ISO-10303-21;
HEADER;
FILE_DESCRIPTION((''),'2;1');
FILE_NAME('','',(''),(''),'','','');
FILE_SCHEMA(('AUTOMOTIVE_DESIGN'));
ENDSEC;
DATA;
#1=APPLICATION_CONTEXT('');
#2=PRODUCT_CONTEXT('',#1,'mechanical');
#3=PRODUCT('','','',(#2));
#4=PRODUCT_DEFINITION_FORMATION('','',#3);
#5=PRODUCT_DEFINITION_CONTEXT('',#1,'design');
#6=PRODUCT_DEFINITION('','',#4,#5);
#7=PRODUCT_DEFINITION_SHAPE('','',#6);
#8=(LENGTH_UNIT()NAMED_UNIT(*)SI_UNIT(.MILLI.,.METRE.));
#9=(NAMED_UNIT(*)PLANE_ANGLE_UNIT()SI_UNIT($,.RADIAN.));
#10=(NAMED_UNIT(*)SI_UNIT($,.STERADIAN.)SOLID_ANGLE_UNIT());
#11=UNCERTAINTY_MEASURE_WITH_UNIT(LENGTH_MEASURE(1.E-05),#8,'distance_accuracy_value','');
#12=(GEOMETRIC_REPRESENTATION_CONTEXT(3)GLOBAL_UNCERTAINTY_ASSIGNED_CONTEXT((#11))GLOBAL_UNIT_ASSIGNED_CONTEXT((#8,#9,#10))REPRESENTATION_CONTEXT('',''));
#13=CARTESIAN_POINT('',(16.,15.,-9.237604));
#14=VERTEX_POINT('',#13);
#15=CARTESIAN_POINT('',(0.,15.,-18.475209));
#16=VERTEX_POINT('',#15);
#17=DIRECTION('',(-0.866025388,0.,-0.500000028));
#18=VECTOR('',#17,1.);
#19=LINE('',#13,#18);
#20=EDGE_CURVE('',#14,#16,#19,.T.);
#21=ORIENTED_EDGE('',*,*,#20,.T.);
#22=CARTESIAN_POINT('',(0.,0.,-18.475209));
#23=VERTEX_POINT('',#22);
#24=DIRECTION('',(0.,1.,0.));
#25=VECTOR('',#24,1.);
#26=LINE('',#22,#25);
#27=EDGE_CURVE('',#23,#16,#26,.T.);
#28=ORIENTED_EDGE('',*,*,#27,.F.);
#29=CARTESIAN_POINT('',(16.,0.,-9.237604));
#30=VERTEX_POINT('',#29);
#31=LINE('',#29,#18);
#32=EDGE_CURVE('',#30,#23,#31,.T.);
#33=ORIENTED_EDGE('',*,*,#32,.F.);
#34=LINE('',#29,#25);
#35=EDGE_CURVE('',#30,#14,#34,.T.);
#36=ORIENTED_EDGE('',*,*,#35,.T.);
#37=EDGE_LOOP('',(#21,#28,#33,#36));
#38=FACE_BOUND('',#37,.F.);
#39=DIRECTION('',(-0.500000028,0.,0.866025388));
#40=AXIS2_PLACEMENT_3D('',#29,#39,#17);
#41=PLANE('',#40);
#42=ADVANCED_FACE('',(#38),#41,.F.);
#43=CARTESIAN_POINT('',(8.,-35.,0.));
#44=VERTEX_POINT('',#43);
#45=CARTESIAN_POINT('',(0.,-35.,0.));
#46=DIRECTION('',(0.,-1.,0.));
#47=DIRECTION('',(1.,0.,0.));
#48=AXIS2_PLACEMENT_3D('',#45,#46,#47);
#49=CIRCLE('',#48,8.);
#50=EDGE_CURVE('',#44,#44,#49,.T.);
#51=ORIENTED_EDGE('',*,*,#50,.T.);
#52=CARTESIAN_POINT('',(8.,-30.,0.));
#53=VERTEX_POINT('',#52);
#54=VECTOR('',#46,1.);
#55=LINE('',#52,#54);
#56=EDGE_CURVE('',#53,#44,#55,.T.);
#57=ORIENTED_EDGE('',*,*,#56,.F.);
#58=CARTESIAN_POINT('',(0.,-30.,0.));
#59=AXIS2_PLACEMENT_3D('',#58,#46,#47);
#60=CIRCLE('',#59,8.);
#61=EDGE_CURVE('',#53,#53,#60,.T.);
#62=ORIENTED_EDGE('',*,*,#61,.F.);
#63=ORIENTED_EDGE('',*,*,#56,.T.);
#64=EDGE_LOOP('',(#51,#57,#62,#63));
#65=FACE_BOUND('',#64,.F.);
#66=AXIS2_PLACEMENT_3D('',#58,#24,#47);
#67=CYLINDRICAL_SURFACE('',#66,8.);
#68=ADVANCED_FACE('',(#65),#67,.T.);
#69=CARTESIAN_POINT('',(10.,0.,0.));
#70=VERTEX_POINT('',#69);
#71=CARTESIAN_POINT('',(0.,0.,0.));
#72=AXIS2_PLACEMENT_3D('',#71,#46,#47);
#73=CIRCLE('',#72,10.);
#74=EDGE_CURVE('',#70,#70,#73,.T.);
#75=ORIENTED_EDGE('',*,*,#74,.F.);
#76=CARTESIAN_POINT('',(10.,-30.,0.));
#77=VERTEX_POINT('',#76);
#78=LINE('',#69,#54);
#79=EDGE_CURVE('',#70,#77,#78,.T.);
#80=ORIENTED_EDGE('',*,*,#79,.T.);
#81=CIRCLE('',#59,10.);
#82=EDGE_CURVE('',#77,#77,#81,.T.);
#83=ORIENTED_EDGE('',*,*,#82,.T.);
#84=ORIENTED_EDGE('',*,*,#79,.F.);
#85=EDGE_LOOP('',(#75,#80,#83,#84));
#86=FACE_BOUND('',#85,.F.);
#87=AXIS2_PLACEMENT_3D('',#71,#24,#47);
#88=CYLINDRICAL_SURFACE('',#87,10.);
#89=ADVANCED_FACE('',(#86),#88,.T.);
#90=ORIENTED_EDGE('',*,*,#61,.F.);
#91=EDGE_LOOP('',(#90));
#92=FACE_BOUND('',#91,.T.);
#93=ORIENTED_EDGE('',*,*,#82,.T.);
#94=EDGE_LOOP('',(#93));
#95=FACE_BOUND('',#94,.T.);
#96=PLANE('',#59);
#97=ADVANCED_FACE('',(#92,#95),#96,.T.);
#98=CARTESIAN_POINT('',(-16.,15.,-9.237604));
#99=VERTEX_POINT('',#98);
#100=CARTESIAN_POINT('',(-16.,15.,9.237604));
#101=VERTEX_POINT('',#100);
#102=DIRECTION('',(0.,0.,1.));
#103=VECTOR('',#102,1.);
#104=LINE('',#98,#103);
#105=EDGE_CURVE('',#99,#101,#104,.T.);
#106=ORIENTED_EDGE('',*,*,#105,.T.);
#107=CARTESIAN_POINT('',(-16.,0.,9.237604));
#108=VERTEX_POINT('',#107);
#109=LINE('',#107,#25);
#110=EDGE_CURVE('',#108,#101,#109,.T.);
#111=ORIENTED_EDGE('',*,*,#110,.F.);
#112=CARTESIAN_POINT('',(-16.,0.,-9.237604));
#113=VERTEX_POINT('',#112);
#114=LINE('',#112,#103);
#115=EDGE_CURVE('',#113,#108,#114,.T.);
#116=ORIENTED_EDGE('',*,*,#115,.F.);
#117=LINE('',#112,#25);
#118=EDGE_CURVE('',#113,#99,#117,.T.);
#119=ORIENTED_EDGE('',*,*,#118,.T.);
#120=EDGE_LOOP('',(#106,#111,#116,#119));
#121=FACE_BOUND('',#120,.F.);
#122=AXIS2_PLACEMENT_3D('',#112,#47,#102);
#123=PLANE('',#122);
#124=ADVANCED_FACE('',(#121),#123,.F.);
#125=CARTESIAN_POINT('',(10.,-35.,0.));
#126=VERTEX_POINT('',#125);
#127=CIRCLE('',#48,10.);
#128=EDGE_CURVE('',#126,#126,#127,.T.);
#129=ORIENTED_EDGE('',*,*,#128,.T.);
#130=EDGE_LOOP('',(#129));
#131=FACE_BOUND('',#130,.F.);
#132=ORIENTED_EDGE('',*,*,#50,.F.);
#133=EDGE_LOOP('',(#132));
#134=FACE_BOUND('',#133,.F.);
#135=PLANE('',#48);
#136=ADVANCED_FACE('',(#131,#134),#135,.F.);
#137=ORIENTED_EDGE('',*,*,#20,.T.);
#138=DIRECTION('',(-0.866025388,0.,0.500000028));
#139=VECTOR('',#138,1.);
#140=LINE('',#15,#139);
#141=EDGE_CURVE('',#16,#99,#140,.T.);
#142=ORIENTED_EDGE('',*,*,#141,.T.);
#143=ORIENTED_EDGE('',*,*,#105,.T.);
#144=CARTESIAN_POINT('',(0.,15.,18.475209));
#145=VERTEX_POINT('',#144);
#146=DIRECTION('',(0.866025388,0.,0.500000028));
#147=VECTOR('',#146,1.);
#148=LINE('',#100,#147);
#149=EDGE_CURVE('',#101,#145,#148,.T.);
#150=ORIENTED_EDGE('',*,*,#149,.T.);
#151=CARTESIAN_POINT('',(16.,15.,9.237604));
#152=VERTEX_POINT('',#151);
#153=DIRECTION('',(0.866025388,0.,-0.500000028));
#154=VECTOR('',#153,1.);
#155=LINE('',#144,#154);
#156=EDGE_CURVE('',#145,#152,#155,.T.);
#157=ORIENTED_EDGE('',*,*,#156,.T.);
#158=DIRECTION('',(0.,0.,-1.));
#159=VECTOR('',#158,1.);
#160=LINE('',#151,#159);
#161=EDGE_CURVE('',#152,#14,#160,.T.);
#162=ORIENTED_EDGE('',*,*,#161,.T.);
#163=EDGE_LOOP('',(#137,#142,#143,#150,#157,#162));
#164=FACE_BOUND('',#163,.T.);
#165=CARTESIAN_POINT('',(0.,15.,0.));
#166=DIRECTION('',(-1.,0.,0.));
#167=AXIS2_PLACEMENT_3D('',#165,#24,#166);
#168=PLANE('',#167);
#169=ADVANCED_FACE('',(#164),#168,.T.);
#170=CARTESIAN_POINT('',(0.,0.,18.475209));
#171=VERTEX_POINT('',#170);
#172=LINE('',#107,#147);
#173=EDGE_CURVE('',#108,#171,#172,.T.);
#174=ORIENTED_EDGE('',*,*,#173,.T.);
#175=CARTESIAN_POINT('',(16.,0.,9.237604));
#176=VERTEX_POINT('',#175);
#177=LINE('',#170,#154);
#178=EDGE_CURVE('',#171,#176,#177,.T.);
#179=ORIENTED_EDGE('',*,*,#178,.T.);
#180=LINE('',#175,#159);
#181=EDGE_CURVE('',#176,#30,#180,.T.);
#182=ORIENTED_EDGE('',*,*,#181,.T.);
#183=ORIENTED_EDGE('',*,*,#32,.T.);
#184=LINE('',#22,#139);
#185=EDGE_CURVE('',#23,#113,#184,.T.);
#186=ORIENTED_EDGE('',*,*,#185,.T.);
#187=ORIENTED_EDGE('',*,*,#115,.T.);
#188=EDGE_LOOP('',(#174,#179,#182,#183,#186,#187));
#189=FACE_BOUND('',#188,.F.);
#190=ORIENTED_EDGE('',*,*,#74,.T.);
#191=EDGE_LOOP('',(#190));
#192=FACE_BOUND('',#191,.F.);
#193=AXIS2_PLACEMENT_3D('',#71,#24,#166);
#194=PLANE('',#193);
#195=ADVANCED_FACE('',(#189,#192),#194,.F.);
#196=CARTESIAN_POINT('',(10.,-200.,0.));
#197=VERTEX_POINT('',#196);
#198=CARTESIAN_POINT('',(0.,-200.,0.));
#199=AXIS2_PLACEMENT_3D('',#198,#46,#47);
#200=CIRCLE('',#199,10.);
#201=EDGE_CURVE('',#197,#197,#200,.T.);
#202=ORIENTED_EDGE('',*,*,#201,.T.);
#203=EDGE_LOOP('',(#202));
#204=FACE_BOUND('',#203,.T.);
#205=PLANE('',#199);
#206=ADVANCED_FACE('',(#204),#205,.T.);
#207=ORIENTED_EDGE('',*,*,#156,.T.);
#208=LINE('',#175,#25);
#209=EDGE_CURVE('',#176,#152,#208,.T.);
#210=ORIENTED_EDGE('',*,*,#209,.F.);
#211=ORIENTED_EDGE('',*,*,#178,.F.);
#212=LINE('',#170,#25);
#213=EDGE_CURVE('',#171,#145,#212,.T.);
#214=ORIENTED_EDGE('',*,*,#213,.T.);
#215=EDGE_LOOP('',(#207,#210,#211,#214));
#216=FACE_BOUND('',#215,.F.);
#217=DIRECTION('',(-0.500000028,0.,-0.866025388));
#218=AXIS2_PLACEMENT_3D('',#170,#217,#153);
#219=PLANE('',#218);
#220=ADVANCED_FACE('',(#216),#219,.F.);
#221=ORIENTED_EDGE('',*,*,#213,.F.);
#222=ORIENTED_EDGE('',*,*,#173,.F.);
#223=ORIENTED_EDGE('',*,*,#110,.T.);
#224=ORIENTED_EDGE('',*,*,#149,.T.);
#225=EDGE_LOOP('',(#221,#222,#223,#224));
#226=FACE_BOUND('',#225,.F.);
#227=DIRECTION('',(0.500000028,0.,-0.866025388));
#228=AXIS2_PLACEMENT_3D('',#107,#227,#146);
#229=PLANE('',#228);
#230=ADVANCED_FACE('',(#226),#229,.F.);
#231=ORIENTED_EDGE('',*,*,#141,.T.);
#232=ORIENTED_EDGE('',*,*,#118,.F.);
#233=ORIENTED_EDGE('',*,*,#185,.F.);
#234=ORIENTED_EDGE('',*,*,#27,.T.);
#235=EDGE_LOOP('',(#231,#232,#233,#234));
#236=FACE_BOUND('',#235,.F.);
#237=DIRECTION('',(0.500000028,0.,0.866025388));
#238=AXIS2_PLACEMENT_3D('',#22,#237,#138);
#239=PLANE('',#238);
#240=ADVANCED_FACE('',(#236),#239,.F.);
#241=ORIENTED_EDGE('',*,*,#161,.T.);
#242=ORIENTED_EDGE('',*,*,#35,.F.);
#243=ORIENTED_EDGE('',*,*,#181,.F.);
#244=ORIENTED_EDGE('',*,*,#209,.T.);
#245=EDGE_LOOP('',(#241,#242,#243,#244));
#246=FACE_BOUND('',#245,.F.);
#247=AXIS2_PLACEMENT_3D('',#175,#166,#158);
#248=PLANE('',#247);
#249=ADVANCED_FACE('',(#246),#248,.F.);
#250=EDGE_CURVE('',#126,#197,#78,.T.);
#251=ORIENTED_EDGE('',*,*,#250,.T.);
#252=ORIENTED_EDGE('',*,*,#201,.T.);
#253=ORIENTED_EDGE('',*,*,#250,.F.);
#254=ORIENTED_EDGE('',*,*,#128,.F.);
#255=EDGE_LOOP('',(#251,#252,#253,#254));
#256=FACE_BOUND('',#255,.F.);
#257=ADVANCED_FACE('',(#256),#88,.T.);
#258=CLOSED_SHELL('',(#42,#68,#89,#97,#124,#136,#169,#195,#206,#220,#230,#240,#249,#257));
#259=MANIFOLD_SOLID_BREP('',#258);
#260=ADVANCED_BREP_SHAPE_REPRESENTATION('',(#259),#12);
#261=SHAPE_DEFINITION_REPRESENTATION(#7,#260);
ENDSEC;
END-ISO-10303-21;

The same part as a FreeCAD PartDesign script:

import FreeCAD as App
import Part
import Sketcher
from FreeCAD import Vector
Q = App.Units.Quantity


def add_polygon(sketch, points):
    """Adds a closed chain of lines whose ends are joined by coincident constraints."""
    first, n = sketch.GeometryCount, len(points)
    for a, b in zip(points, points[1:] + points[:1]):
        sketch.addGeometry(Part.LineSegment(App.Vector(*a, 0), App.Vector(*b, 0)), False)
    for i in range(n):
        sketch.addConstraint(Sketcher.Constraint("Coincident", first + i, 2, first + (i + 1) % n, 1))

doc = App.newDocument("Part")
params = doc.addObject("Spreadsheet::Sheet", "Params")
for row, (alias, value) in enumerate([
    ("sketch1_diameter", "20 mm"),
    ("pad1_length", "200 mm"),
    ("sketch2_diameter", "20 mm"),
    ("sketch2_diameter2", "16 mm"),
    ("pocket1_length", "5 mm"),
    ("pad2_length", "15 mm"),
], start=1):
    params.set(f"A{row}", alias)
    params.set(f"B{row}", "=" + value)
    params.setAlias(f"B{row}", alias)

body = doc.addObject("PartDesign::Body", "Body")

sketch1 = body.newObject("Sketcher::SketchObject", "Sketch")
sketch1.AttachmentSupport = (doc.getObject("XZ_Plane"), [""])
sketch1.MapMode = "FlatFace"
sketch1.addGeometry(Part.Circle(Vector(0, 0, 0), Vector(0, 0, 1), 10), False)
sketch1.addConstraint(Sketcher.Constraint("Coincident", 0, 3, -1, 1))
sketch1.addConstraint(Sketcher.Constraint("Diameter", 0, 20.0))
sketch1.setExpression("Constraints[1]", "Params.sketch1_diameter")
pad1 = body.newObject("PartDesign::Pad", "Pad")
pad1.Profile = sketch1
pad1.setExpression("Length", "Params.pad1_length")

sketch2 = body.newObject("Sketcher::SketchObject", "Sketch001")
sketch2.AttachmentSupport = (doc.getObject("XZ_Plane"), [""])
sketch2.MapMode = "FlatFace"
sketch2.AttachmentOffset = App.Placement(Vector(0, 0, 30), App.Rotation())
sketch2.addGeometry(Part.Circle(Vector(0, 0, 0), Vector(0, 0, 1), 10), False)
sketch2.addGeometry(Part.Circle(Vector(0, 0, 0), Vector(0, 0, 1), 8), False)
sketch2.addConstraint(Sketcher.Constraint("Coincident", 0, 3, -1, 1))
sketch2.addConstraint(Sketcher.Constraint("Coincident", 1, 3, -1, 1))
sketch2.addConstraint(Sketcher.Constraint("Diameter", 0, 20.0))
sketch2.addConstraint(Sketcher.Constraint("Diameter", 1, 16.0))
sketch2.setExpression("Constraints[2]", "Params.sketch2_diameter")
sketch2.setExpression("Constraints[3]", "Params.sketch2_diameter2")
pocket1 = body.newObject("PartDesign::Pocket", "Pocket")
pocket1.Profile = sketch2
pocket1.setExpression("Length", "Params.pocket1_length")
pocket1.Reversed = True

sketch3 = body.newObject("Sketcher::SketchObject", "Sketch002")
sketch3.AttachmentSupport = (doc.getObject("XZ_Plane"), [""])
sketch3.MapMode = "FlatFace"
add_polygon(sketch3, [(-16, -9), (-16, 9), (0, 18), (16, 9), (16, -9), (0, -18)])
sketch3.addConstraint(Sketcher.Constraint("Vertical", 0))
sketch3.addConstraint(Sketcher.Constraint("Vertical", 3))
sketch3.addConstraint(Sketcher.Constraint("Symmetric", 0, 2, 3, 2, -1, 1))
sketch3.addConstraint(Sketcher.Constraint("Symmetric", 1, 2, 4, 2, -1, 1))
sketch3.addConstraint(Sketcher.Constraint("PointOnObject", 1, 2, -2))
sketch3.addConstraint(Sketcher.Constraint("Parallel", 2, 5))
sketch3.addConstraint(Sketcher.Constraint("Horizontal", 0, 2, 2, 2))
sketch3.addConstraint(Sketcher.Constraint("Angle", 1, Q("30.000002 deg")))
sketch3.addConstraint(Sketcher.Constraint("DistanceX", 0, 2, -1, 1, 16.0))
sketch3.addConstraint(Sketcher.Constraint("DistanceY", 0, 1, 0, 2, 18.475208))
pad2 = body.newObject("PartDesign::Pad", "Pad001")
pad2.Profile = sketch3
pad2.setExpression("Length", "Params.pad2_length")
pad2.Reversed = True

doc.recompute()
